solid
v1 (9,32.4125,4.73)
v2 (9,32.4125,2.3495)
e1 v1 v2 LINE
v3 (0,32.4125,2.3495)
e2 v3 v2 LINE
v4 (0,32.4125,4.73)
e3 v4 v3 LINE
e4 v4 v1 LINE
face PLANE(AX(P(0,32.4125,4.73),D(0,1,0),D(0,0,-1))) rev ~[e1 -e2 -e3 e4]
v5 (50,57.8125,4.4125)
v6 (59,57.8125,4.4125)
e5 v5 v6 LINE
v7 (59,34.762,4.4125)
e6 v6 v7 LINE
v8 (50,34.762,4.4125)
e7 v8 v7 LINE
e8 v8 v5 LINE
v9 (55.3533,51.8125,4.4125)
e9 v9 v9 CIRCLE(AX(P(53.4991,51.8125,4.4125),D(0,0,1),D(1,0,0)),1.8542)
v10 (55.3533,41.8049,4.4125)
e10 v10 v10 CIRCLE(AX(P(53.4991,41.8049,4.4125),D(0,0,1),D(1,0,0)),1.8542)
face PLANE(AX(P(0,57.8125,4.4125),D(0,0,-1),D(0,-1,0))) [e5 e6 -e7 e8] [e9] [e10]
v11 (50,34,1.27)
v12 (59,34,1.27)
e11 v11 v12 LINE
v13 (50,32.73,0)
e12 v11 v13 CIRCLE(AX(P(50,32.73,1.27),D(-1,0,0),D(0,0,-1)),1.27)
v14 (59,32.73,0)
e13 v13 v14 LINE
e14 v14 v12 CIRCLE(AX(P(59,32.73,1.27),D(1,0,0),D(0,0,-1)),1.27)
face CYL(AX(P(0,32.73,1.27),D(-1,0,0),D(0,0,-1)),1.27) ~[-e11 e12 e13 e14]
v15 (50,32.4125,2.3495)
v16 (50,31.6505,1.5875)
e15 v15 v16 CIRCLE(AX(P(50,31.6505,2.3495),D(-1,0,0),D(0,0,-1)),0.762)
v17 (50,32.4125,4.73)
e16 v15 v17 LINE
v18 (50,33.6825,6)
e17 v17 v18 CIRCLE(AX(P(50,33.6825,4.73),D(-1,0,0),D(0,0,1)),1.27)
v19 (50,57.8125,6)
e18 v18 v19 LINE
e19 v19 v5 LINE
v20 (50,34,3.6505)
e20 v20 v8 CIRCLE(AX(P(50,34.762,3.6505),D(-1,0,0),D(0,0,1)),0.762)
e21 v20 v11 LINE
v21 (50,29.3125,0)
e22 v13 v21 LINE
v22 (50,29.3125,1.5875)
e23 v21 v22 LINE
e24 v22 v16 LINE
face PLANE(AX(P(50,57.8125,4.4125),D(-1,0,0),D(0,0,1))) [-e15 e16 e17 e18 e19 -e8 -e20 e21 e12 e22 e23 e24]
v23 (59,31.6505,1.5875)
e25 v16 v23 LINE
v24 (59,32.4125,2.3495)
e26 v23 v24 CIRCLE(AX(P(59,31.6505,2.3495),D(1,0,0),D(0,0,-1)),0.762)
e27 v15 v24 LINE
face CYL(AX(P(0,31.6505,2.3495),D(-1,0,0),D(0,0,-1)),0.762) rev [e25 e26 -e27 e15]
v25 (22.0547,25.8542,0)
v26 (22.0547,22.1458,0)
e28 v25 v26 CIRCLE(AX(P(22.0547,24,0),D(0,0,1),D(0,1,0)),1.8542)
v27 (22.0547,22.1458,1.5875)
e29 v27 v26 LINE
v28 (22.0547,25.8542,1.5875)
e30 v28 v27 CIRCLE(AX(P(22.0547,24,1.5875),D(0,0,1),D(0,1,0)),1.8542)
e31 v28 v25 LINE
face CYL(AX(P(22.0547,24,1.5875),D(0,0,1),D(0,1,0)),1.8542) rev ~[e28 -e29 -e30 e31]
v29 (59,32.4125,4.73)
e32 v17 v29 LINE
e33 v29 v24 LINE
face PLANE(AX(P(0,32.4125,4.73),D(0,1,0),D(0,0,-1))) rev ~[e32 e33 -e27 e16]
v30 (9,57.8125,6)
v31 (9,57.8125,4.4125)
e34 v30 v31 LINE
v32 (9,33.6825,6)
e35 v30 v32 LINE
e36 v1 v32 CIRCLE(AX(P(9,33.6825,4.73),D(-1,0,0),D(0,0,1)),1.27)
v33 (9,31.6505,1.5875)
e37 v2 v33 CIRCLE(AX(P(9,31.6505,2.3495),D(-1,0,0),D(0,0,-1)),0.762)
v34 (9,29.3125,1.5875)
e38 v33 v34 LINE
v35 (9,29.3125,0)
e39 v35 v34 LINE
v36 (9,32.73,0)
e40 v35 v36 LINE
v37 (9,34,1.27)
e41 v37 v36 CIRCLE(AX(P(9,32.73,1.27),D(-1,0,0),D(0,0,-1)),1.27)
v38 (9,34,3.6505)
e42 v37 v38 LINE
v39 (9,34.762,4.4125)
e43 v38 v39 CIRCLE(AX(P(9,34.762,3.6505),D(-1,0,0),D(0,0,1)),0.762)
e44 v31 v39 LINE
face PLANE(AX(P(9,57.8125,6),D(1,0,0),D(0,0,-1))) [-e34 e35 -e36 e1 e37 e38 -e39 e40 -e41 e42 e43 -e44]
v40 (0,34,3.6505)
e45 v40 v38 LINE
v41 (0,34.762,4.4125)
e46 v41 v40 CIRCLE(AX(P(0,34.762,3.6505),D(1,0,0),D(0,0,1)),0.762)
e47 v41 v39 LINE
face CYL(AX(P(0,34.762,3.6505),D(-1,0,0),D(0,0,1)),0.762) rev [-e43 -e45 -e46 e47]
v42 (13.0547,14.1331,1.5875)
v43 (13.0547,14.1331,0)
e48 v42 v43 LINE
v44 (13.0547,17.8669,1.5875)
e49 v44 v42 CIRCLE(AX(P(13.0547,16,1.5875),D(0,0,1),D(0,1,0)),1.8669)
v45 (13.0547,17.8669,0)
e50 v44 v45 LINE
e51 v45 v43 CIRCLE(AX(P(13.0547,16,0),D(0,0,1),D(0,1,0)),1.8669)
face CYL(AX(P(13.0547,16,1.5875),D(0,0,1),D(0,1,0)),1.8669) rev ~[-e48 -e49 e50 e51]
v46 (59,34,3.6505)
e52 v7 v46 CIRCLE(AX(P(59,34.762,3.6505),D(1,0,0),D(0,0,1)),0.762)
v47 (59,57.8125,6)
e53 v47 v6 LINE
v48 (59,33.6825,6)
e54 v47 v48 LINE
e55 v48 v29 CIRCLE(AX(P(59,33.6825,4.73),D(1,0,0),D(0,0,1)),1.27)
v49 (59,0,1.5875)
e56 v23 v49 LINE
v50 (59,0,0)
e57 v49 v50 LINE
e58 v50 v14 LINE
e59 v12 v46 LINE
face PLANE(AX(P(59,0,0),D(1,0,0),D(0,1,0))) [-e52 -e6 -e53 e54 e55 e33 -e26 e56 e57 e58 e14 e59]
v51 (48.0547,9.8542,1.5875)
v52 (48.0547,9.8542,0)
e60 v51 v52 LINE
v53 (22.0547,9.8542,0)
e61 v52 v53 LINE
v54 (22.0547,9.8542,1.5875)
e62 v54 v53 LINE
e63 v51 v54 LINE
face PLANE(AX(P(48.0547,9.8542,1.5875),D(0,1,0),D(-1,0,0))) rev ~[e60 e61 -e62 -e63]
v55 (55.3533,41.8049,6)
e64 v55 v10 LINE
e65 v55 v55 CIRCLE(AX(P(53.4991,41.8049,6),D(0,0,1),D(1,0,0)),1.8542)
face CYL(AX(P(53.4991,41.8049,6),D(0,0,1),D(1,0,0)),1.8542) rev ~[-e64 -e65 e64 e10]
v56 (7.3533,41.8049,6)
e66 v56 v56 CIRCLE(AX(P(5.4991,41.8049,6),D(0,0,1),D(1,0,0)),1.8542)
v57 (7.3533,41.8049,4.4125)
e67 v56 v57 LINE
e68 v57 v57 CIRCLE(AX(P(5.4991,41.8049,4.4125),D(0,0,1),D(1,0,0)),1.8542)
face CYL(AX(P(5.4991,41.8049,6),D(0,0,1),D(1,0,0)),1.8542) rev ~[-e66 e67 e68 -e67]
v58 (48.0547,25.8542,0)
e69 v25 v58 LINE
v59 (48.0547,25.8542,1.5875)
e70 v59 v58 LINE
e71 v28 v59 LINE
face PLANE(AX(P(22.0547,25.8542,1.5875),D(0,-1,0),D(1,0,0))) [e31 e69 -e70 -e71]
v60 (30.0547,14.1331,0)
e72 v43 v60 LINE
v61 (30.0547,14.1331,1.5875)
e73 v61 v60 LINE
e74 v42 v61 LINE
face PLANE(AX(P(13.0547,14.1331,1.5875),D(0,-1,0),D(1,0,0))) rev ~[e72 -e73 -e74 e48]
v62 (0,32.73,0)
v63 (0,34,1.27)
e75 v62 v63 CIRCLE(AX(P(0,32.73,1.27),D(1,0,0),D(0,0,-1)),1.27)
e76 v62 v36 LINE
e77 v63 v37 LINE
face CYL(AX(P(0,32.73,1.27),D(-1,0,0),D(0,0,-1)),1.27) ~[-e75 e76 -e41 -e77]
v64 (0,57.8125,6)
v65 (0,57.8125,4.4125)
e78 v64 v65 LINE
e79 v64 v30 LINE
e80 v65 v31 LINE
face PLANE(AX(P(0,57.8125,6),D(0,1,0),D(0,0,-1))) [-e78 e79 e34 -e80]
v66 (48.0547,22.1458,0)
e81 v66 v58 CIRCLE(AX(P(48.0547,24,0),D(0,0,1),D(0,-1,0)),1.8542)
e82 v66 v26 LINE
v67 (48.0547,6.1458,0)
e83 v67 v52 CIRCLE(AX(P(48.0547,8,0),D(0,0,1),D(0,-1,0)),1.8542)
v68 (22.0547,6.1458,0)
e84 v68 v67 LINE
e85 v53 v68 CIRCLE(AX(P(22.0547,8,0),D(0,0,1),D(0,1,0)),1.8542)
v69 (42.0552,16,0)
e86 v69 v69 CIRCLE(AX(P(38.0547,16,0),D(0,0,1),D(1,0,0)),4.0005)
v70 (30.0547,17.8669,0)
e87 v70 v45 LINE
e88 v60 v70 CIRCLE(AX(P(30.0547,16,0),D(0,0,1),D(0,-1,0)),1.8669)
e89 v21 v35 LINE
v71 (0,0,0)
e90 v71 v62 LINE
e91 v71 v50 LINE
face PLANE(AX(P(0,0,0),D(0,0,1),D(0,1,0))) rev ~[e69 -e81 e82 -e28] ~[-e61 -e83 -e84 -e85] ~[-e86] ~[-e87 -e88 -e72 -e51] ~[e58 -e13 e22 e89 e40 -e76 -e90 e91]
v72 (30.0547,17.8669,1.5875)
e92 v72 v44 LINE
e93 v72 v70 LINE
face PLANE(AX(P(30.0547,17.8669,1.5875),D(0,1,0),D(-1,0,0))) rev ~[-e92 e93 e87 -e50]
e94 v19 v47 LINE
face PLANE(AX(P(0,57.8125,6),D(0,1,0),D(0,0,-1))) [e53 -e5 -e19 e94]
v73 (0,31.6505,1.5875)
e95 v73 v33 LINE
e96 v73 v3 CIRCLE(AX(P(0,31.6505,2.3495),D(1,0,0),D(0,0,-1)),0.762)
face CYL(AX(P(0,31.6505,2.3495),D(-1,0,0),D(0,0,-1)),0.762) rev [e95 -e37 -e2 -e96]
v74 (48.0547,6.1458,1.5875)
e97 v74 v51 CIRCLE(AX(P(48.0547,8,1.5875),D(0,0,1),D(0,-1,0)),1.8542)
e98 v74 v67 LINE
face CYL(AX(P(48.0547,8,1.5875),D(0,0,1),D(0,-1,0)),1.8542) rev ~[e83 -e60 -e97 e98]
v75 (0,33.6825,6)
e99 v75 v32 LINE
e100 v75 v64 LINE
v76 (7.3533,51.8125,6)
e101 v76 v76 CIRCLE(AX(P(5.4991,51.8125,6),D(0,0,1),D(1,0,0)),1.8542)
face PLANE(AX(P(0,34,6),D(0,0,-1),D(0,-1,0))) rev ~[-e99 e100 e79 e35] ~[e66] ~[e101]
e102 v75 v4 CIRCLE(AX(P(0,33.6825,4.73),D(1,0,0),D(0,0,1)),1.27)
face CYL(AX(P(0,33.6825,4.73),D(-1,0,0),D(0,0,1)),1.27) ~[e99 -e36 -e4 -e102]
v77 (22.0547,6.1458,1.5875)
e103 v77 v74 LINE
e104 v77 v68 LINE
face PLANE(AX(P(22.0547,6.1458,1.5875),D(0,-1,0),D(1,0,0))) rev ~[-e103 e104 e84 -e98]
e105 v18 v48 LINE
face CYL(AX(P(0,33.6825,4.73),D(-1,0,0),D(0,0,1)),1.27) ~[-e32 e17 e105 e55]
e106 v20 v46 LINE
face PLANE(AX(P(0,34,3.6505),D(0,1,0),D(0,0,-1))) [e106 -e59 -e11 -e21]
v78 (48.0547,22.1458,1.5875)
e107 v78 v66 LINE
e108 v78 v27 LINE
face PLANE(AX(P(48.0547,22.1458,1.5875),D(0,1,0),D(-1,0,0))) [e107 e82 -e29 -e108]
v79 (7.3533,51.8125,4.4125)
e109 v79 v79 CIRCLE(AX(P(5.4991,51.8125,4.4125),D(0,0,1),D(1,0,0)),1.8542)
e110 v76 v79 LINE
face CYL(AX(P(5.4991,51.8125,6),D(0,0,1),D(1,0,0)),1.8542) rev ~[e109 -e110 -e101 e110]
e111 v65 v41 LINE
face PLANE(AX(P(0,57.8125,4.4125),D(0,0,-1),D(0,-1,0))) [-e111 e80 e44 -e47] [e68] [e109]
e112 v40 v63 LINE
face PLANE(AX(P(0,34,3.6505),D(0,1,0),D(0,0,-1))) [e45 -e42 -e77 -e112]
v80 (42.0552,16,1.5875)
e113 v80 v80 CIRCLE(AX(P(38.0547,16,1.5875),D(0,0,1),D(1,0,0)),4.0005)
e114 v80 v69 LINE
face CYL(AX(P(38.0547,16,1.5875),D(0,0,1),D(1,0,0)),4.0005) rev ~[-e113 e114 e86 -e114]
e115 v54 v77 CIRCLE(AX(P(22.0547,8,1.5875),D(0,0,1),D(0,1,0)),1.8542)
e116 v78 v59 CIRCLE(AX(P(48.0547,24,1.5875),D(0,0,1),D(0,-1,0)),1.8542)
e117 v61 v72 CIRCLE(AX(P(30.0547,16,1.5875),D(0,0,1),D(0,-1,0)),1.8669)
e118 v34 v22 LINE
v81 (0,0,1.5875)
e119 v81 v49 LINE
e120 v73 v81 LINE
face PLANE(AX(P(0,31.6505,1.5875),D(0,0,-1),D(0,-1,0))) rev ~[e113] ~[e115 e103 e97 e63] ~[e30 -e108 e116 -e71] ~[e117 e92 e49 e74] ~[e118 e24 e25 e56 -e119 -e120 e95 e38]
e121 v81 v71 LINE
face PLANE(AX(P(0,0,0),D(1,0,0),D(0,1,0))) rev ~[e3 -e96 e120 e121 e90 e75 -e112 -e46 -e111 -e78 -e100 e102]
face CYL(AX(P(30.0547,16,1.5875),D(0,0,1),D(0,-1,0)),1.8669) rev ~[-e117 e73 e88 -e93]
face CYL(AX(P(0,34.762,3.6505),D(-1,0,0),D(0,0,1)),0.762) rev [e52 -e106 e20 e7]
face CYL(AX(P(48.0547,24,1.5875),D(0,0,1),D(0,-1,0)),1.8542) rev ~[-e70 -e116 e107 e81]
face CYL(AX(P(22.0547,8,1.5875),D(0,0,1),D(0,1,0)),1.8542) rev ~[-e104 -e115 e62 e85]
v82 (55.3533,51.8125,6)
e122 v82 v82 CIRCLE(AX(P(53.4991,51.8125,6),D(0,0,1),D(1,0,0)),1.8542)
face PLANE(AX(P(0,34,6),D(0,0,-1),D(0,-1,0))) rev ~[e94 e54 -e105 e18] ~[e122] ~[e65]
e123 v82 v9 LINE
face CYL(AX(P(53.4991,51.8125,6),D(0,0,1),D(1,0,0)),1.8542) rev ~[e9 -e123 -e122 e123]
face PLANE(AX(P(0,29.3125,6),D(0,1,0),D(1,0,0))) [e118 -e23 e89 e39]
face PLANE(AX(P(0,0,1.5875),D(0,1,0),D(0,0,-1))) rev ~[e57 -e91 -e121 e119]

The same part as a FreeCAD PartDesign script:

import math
import FreeCAD as App
import Part
import Sketcher
Q = App.Units.Quantity


def add_polygon(sketch, points):
    """Adds a closed chain of lines whose ends are joined by coincident constraints."""
    first, n = sketch.GeometryCount, len(points)
    for a, b in zip(points, points[1:] + points[:1]):
        sketch.addGeometry(Part.LineSegment(App.Vector(*a, 0), App.Vector(*b, 0)), False)
    for i in range(n):
        sketch.addConstraint(Sketcher.Constraint("Coincident", first + i, 2, first + (i + 1) % n, 1))

doc = App.newDocument("Part")
body = doc.addObject("PartDesign::Body", "Body")

sketch1 = body.newObject("Sketcher::SketchObject", "Sketch")
sketch1.AttachmentSupport = (doc.getObject("YZ_Plane"), [""])
sketch1.MapMode = "FlatFace"
sketch1.addGeometry([
    Part.LineSegment(App.Vector(0, 1.6, 0), App.Vector(0, 0, 0)),
    Part.LineSegment(App.Vector(0, 0, 0), App.Vector(32.7, 0, 0)),
    Part.ArcOfCircle(Part.Circle(App.Vector(32.7, 1.3, 0), App.Vector(0, 0, 1), 1.3), math.radians(-90), math.radians(0)),
    Part.LineSegment(App.Vector(34, 1.3, 0), App.Vector(34, 3.7, 0)),
    Part.ArcOfCircle(Part.Circle(App.Vector(34.8, 3.7, 0), App.Vector(0, 0, 1), 0.8), math.radians(90), math.radians(180)),
    Part.LineSegment(App.Vector(34.8, 4.4, 0), App.Vector(57.8, 4.4, 0)),
    Part.LineSegment(App.Vector(57.8, 4.4, 0), App.Vector(57.8, 6, 0)),
    Part.LineSegment(App.Vector(57.8, 6, 0), App.Vector(33.7, 6, 0)),
    Part.ArcOfCircle(Part.Circle(App.Vector(33.7, 4.7, 0), App.Vector(0, 0, 1), 1.3), math.radians(90), math.radians(180)),
    Part.LineSegment(App.Vector(32.4, 4.7, 0), App.Vector(32.4, 2.3, 0)),
    Part.ArcOfCircle(Part.Circle(App.Vector(31.7, 2.3, 0), App.Vector(0, 0, 1), 0.8), math.radians(-90), math.radians(0)),
    Part.LineSegment(App.Vector(31.7, 1.6, 0), App.Vector(0, 1.6, 0)),
], False)
sketch1.addConstraint([
    Sketcher.Constraint("Coincident", 0, 2, 1, 1),
    Sketcher.Constraint("Tangent", 1, 2, 2, 1),
    Sketcher.Constraint("Tangent", 2, 2, 3, 1),
    Sketcher.Constraint("Tangent", 3, 2, 4, 2),
    Sketcher.Constraint("Tangent", 4, 1, 5, 1),
    Sketcher.Constraint("Coincident", 5, 2, 6, 1),
    Sketcher.Constraint("Coincident", 6, 2, 7, 1),
    Sketcher.Constraint("Tangent", 7, 2, 8, 1),
    Sketcher.Constraint("Tangent", 8, 2, 9, 1),
    Sketcher.Constraint("Tangent", 9, 2, 10, 2),
    Sketcher.Constraint("Tangent", 10, 1, 11, 1),
    Sketcher.Constraint("Coincident", 11, 2, 0, 1),
    Sketcher.Constraint("Vertical", 0),
    Sketcher.Constraint("Horizontal", 1),
    Sketcher.Constraint("Vertical", 3),
    Sketcher.Constraint("Horizontal", 5),
    Sketcher.Constraint("Vertical", 6),
    Sketcher.Constraint("Horizontal", 7),
    Sketcher.Constraint("Vertical", 9),
    Sketcher.Constraint("Horizontal", 11),
    Sketcher.Constraint("Coincident", 0, 2, -1, 1),
    Sketcher.Constraint("Equal", 2, 8),
    Sketcher.Constraint("Equal", 4, 10),
    Sketcher.Constraint("Equal", 0, 6),
    Sketcher.Constraint("Radius", 2, Q("0.05 in")),
    Sketcher.Constraint("DistanceY", 0, 2, 0, 1, Q("0.0625 in")),
    Sketcher.Constraint("Radius", 4, Q("0.03 in")),
    Sketcher.Constraint("DistanceX", 8, 2, 3, 2, Q("0.0625 in")),
    Sketcher.Constraint("DistanceX", 7, 2, 7, 1, Q("0.95 in")),
    Sketcher.Constraint("DistanceX", -1, 1, 2, 2, 34.0),
    Sketcher.Constraint("DistanceY", 3, 1, 3, 2, 2.3805),
])
pad1 = body.newObject("PartDesign::Pad", "Pad")
pad1.Profile = sketch1
pad1.Length = 59

sketch2 = body.newObject("Sketcher::SketchObject", "Sketch001")
sketch2.AttachmentSupport = (doc.getObject("XZ_Plane"), [""])
sketch2.MapMode = "FlatFace"
sketch2.AttachmentOffset = App.Placement(App.Vector(0, 0, -57.8125), App.Rotation())
add_polygon(sketch2, [(9, 6), (50, 6), (50, 0), (9, 0)])
sketch2.addConstraint([
    Sketcher.Constraint("Horizontal", 0),
    Sketcher.Constraint("Vertical", 1),
    Sketcher.Constraint("Horizontal", 2),
    Sketcher.Constraint("Vertical", 3),
    Sketcher.Constraint("DistanceY", 1, 2, 1, 1, Q("0.25 in")),
    Sketcher.Constraint("DistanceX", -1, 1, 2, 2, 9.0),
    Sketcher.Constraint("DistanceX", 0, 1, 0, 2, 41.0),
    Sketcher.Constraint("DistanceY", -1, 1, 0, 2, 6.0),
])
pocket1 = body.newObject("PartDesign::Pocket", "Pocket")
pocket1.Profile = sketch2
pocket1.Length = 28.5
pocket1.Reversed = True

sketch3 = body.newObject("Sketcher::SketchObject", "Sketch002")
sketch3.AttachmentSupport = (doc.getObject("XY_Plane"), [""])
sketch3.MapMode = "FlatFace"
sketch3.AttachmentOffset = App.Placement(App.Vector(0, 0, 0.0625 * 25.4), App.Rotation())
sketch3.addGeometry([
    Part.Circle(App.Vector(38.1, 16, 0), App.Vector(0, 0, 1), 4),
    Part.ArcOfCircle(Part.Circle(App.Vector(48.1, 8, 0), App.Vector(0, 0, 1), 1.9), math.radians(-90), math.radians(90)),
    Part.LineSegment(App.Vector(48.1, 9.9, 0), App.Vector(22.1, 9.9, 0)),
    Part.ArcOfCircle(Part.Circle(App.Vector(22.1, 8, 0), App.Vector(0, 0, 1), 1.9), math.radians(90), math.radians(270)),
    Part.LineSegment(App.Vector(22.1, 6.1, 0), App.Vector(48.1, 6.1, 0)),
    Part.LineSegment(App.Vector(22.1, 22.1, 0), App.Vector(48.1, 22.1, 0)),
    Part.ArcOfCircle(Part.Circle(App.Vector(48.1, 24, 0), App.Vector(0, 0, 1), 1.9), math.radians(-90), math.radians(90)),
    Part.LineSegment(App.Vector(48.1, 25.9, 0), App.Vector(22.1, 25.9, 0)),
    Part.ArcOfCircle(Part.Circle(App.Vector(22.1, 24, 0), App.Vector(0, 0, 1), 1.9), math.radians(90), math.radians(270)),
    Part.ArcOfCircle(Part.Circle(App.Vector(30.1, 16, 0), App.Vector(0, 0, 1), 1.9), math.radians(-90), math.radians(90)),
    Part.LineSegment(App.Vector(30.1, 17.9, 0), App.Vector(13.1, 17.9, 0)),
    Part.ArcOfCircle(Part.Circle(App.Vector(13.1, 16, 0), App.Vector(0, 0, 1), 1.9), math.radians(90), math.radians(270)),
    Part.LineSegment(App.Vector(13.1, 14.1, 0), App.Vector(30.1, 14.1, 0)),
], False)
sketch3.addConstraint([
    Sketcher.Constraint("Tangent", 1, 2, 2, 1),
    Sketcher.Constraint("Tangent", 2, 2, 3, 1),
    Sketcher.Constraint("Tangent", 3, 2, 4, 1),
    Sketcher.Constraint("Tangent", 4, 2, 1, 1),
    Sketcher.Constraint("Tangent", 5, 2, 6, 1),
    Sketcher.Constraint("Tangent", 6, 2, 7, 1),
    Sketcher.Constraint("Tangent", 7, 2, 8, 1),
    Sketcher.Constraint("Tangent", 8, 2, 5, 1),
    Sketcher.Constraint("Tangent", 9, 2, 10, 1),
    Sketcher.Constraint("Tangent", 10, 2, 11, 1),
    Sketcher.Constraint("Tangent", 11, 2, 12, 1),
    Sketcher.Constraint("Tangent", 12, 2, 9, 1),
    Sketcher.Constraint("Horizontal", 2),
    Sketcher.Constraint("Horizontal", 4),
    Sketcher.Constraint("Horizontal", 5),
    Sketcher.Constraint("Horizontal", 7),
    Sketcher.Constraint("Horizontal", 10),
    Sketcher.Constraint("Horizontal", 12),
    Sketcher.Constraint("Equal", 3, 6),
    Sketcher.Constraint("Horizontal", 0, 3, 9, 3),
    Sketcher.Constraint("Vertical", 1, 3, 6, 3),
    Sketcher.Constraint("Vertical", 3, 3, 8, 3),
    Sketcher.Constraint("Radius", 9, Q("0.0735 in")),
    Sketcher.Constraint("Diameter", 0, Q("0.315 in")),
    Sketcher.Constraint("DistanceX", 10, 2, 10, 1, Q("0.6693 in")),
    Sketcher.Constraint("Radius", 1, Q("0.073 in")),
    Sketcher.Constraint("DistanceX", 2, 2, 2, 1, 26.0),
    Sketcher.Constraint("DistanceX", -1, 1, 3, 3, Q("0.8683 in")),
    Sketcher.Constraint("DistanceX", 0, 3, 1, 3, Q("0.3937 in")),
    Sketcher.Constraint("DistanceY", -1, 1, 0, 3, 16.0),
    Sketcher.Constraint("DistanceY", -1, 1, 1, 3, 8.0),
    Sketcher.Constraint("DistanceY", -1, 1, 6, 3, 24.0),
    Sketcher.Constraint("DistanceX", -1, 1, 9, 3, 30.0547),
])
pocket2 = body.newObject("PartDesign::Pocket", "Pocket001")
pocket2.Profile = sketch3
pocket2.Length = 28.5

sketch4 = body.newObject("Sketcher::SketchObject", "Sketch003")
sketch4.AttachmentSupport = (doc.getObject("XY_Plane"), [""])
sketch4.MapMode = "FlatFace"
sketch4.AttachmentOffset = App.Placement(App.Vector(0, 0, 6), App.Rotation())
sketch4.addGeometry([
    Part.Circle(App.Vector(5.5, 51.8, 0), App.Vector(0, 0, 1), 1.9),
    Part.Circle(App.Vector(5.5, 41.8, 0), App.Vector(0, 0, 1), 1.9),
    Part.Circle(App.Vector(53.5, 51.8, 0), App.Vector(0, 0, 1), 1.9),
    Part.Circle(App.Vector(53.5, 41.8, 0), App.Vector(0, 0, 1), 1.9),
], False)
sketch4.addConstraint([
    Sketcher.Constraint("Equal", 0, 1),
    Sketcher.Constraint("Equal", 1, 2),
    Sketcher.Constraint("Equal", 2, 3),
    Sketcher.Constraint("Horizontal", 0, 3, 2, 3),
    Sketcher.Constraint("Horizontal", 1, 3, 3, 3),
    Sketcher.Constraint("Vertical", 0, 3, 1, 3),
    Sketcher.Constraint("Vertical", 2, 3, 3, 3),
    Sketcher.Constraint("Diameter", 0, Q("0.146 in")),
    Sketcher.Constraint("DistanceY", 1, 3, 0, 3, Q("0.394 in")),
    Sketcher.Constraint("DistanceX", -1, 1, 0, 3, Q("0.2165 in")),
    Sketcher.Constraint("DistanceY", -1, 1, 0, 3, 51.8125),
    Sketcher.Constraint("DistanceX", -1, 1, 2, 3, 53.499),
])
pocket3 = body.newObject("PartDesign::Pocket", "Pocket002")
pocket3.Profile = sketch4
pocket3.Length = 28.5

doc.recompute()
